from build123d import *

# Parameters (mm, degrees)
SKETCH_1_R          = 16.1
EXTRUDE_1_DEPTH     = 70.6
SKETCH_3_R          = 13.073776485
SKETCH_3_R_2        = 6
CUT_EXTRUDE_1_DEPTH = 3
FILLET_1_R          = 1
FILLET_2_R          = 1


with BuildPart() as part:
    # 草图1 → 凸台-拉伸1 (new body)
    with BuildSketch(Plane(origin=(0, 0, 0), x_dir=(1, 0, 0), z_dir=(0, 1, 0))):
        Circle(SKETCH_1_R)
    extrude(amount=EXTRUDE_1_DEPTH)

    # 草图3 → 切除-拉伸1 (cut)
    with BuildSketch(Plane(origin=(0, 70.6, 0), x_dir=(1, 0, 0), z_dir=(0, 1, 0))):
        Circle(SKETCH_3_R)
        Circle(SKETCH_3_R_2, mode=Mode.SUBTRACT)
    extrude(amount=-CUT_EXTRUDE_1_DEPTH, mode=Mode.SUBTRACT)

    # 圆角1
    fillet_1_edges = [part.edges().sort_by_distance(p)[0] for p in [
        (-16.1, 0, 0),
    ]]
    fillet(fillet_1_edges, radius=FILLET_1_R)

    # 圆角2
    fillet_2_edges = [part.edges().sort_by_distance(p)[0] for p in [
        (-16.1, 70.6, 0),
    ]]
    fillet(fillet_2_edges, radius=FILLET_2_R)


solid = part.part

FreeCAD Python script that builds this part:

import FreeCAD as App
import Part
import Sketcher
from FreeCAD import Vector


def edges_at(feature, points):
    """Names of the edges that pass closest to the given points."""
    edges = feature.Shape.Edges
    near = lambda p: min(range(len(edges)), key=lambda i: edges[i].distToShape(Part.Vertex(*p))[0])
    return sorted({f"Edge{near(p) + 1}" for p in points})

doc = App.newDocument("Part")
body = doc.addObject("PartDesign::Body", "Body")

# Sketch on XZ plane
sketch1 = doc.addObject("Sketcher::SketchObject", "Sketch")
body.addObject(sketch1)
sketch1.AttachmentSupport = (doc.XZ_Plane, [""])
sketch1.MapMode = "FlatFace"
sketch1.addGeometry(Part.Circle(Vector(0, 0, 0), Vector(0, 0, 1), 16), False)
sketch1.addConstraint([
    Sketcher.Constraint("Coincident", 0, 3, -1, 1),
    Sketcher.Constraint("Diameter", 0, 32.2),
])
pad1 = doc.addObject("PartDesign::Pad", "Pad")
body.addObject(pad1)
pad1.Profile = sketch1
pad1.Length = 70.6
pad1.Reversed = True

# Sketch on XZ plane
sketch2 = doc.addObject("Sketcher::SketchObject", "Sketch001")
body.addObject(sketch2)
sketch2.AttachmentSupport = (doc.XZ_Plane, [""])
sketch2.MapMode = "FlatFace"
sketch2.AttachmentOffset = App.Placement(Vector(0, 0, -70.6), App.Rotation())
sketch2.addGeometry([
    Part.Circle(Vector(0, 0, 0), Vector(0, 0, 1), 13),
    Part.Circle(Vector(0, 0, 0), Vector(0, 0, 1), 6),
], False)
sketch2.addConstraint([
    Sketcher.Constraint("Coincident", 0, 3, -1, 1),
    Sketcher.Constraint("Coincident", 1, 3, -1, 1),
    Sketcher.Constraint("Diameter", 1, 12.0),
    Sketcher.Constraint("Diameter", 0, 26.147553),
])
pocket1 = doc.addObject("PartDesign::Pocket", "Pocket")
body.addObject(pocket1)
pocket1.Profile = sketch2
pocket1.Length = 3
pocket1.Reversed = True
doc.recompute()

fillet = doc.addObject("PartDesign::Fillet", "Fillet")
body.addObject(fillet)
fillet.Base = (pocket1, edges_at(pocket1, [(-16.1, 0, 0)]))
fillet.Radius = 1
doc.recompute()

fillet2 = doc.addObject("PartDesign::Fillet", "Fillet001")
body.addObject(fillet2)
fillet2.Base = (fillet, edges_at(fillet, [(-16.1, 70.6, 0)]))
fillet2.Radius = 1

doc.recompute()
